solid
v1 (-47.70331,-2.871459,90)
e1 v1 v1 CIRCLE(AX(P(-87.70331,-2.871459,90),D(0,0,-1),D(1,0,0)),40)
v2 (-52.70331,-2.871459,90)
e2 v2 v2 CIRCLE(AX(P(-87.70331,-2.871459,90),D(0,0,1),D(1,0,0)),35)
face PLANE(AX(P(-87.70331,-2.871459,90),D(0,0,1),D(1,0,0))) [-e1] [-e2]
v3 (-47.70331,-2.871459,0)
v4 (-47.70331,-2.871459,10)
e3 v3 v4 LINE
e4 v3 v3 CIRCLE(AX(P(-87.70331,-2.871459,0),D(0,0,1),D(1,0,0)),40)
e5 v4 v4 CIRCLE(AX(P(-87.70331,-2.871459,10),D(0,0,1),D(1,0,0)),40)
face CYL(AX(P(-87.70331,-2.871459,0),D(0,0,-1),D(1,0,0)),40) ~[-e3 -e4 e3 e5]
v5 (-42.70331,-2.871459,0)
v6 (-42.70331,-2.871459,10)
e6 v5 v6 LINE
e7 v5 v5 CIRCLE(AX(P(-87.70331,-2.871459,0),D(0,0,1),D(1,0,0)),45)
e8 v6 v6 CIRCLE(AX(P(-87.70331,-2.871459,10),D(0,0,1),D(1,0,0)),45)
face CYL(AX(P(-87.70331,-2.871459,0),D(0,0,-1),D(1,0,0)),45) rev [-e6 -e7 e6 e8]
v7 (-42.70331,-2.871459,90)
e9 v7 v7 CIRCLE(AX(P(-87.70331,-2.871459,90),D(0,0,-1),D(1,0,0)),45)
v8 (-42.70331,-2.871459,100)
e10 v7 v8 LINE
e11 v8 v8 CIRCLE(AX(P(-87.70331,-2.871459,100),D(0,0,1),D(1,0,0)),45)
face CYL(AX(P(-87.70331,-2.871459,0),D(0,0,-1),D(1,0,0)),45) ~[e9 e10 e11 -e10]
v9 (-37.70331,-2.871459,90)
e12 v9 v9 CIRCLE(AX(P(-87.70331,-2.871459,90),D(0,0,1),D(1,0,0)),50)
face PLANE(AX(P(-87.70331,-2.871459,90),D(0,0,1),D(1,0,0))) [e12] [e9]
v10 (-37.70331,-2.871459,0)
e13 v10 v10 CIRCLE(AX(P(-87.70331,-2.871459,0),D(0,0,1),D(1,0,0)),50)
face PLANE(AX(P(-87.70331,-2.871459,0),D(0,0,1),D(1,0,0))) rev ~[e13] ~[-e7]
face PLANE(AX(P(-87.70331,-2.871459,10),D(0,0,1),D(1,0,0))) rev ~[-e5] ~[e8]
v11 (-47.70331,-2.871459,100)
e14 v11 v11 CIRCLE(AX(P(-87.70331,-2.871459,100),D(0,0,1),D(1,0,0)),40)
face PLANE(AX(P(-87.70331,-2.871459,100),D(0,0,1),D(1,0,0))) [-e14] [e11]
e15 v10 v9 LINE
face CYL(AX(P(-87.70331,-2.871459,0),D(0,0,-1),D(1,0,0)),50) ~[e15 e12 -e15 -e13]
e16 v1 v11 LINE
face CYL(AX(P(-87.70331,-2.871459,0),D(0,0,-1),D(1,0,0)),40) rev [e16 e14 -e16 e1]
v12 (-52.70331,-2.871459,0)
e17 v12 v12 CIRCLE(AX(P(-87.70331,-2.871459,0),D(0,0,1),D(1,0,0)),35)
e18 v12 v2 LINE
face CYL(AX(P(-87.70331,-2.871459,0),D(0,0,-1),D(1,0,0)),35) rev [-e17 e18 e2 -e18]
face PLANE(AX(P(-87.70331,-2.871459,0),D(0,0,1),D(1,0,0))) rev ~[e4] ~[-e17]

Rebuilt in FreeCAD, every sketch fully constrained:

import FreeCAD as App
import Part
import Sketcher

doc = App.newDocument("Part")
body = doc.addObject("PartDesign::Body", "Body")

sketch1 = body.newObject("Sketcher::SketchObject", "Sketch")
sketch1.AttachmentSupport = (doc.getObject("XY_Plane"), [""])
sketch1.MapMode = "FlatFace"
sketch1.addGeometry(Part.Circle(App.Vector(-87.70331, -2.871459, 0), App.Vector(0, 0, 1), 50), False)
sketch1.addGeometry(Part.Circle(App.Vector(-87.70331, -2.871459, 0), App.Vector(0, 0, 1), 35), False)
sketch1.addConstraint(Sketcher.Constraint("Coincident", 1, 3, 0, 3))
sketch1.addConstraint(Sketcher.Constraint("Diameter", 0, 100.0))
sketch1.addConstraint(Sketcher.Constraint("Diameter", 1, 70.0))
sketch1.addConstraint(Sketcher.Constraint("DistanceX", 0, 3, -1, 1, 87.70331))
sketch1.addConstraint(Sketcher.Constraint("DistanceY", 0, 3, -1, 1, 2.871459))
pad1 = body.newObject("PartDesign::Pad", "Pad")
pad1.Profile = sketch1
pad1.Length = 90

sketch2 = body.newObject("Sketcher::SketchObject", "Sketch001")
sketch2.AttachmentSupport = (doc.getObject("XY_Plane"), [""])
sketch2.MapMode = "FlatFace"
sketch2.addGeometry(Part.Circle(App.Vector(-87.70331, -2.871459, 0), App.Vector(0, 0, 1), 45), False)
sketch2.addGeometry(Part.Circle(App.Vector(-87.70331, -2.871459, 0), App.Vector(0, 0, 1), 40), False)
sketch2.addConstraint(Sketcher.Constraint("Coincident", 1, 3, 0, 3))
sketch2.addConstraint(Sketcher.Constraint("Diameter", 0, 90.0))
sketch2.addConstraint(Sketcher.Constraint("Diameter", 1, 80.0))
sketch2.addConstraint(Sketcher.Constraint("DistanceX", 0, 3, -1, 1, 87.70331))
sketch2.addConstraint(Sketcher.Constraint("DistanceY", 0, 3, -1, 1, 2.871459))
pad2 = body.newObject("PartDesign::Pad", "Pad001")
pad2.Profile = sketch2
pad2.Length = 100

sketch3 = body.newObject("Sketcher::SketchObject", "Sketch002")
sketch3.AttachmentSupport = (doc.getObject("XY_Plane"), [""])
sketch3.MapMode = "FlatFace"
sketch3.addGeometry(Part.Circle(App.Vector(-87.70331, -2.871459, 0), App.Vector(0, 0, 1), 45), False)
sketch3.addGeometry(Part.Circle(App.Vector(-87.70331, -2.871459, 0), App.Vector(0, 0, 1), 40), False)
sketch3.addConstraint(Sketcher.Constraint("Coincident", 1, 3, 0, 3))
sketch3.addConstraint(Sketcher.Constraint("Diameter", 0, 90.0))
sketch3.addConstraint(Sketcher.Constraint("Diameter", 1, 80.0))
sketch3.addConstraint(Sketcher.Constraint("DistanceX", 0, 3, -1, 1, 87.70331))
sketch3.addConstraint(Sketcher.Constraint("DistanceY", 0, 3, -1, 1, 2.871459))
pocket1 = body.newObject("PartDesign::Pocket", "Pocket")
pocket1.Profile = sketch3
pocket1.Length = 10
pocket1.Reversed = True

doc.recompute()
